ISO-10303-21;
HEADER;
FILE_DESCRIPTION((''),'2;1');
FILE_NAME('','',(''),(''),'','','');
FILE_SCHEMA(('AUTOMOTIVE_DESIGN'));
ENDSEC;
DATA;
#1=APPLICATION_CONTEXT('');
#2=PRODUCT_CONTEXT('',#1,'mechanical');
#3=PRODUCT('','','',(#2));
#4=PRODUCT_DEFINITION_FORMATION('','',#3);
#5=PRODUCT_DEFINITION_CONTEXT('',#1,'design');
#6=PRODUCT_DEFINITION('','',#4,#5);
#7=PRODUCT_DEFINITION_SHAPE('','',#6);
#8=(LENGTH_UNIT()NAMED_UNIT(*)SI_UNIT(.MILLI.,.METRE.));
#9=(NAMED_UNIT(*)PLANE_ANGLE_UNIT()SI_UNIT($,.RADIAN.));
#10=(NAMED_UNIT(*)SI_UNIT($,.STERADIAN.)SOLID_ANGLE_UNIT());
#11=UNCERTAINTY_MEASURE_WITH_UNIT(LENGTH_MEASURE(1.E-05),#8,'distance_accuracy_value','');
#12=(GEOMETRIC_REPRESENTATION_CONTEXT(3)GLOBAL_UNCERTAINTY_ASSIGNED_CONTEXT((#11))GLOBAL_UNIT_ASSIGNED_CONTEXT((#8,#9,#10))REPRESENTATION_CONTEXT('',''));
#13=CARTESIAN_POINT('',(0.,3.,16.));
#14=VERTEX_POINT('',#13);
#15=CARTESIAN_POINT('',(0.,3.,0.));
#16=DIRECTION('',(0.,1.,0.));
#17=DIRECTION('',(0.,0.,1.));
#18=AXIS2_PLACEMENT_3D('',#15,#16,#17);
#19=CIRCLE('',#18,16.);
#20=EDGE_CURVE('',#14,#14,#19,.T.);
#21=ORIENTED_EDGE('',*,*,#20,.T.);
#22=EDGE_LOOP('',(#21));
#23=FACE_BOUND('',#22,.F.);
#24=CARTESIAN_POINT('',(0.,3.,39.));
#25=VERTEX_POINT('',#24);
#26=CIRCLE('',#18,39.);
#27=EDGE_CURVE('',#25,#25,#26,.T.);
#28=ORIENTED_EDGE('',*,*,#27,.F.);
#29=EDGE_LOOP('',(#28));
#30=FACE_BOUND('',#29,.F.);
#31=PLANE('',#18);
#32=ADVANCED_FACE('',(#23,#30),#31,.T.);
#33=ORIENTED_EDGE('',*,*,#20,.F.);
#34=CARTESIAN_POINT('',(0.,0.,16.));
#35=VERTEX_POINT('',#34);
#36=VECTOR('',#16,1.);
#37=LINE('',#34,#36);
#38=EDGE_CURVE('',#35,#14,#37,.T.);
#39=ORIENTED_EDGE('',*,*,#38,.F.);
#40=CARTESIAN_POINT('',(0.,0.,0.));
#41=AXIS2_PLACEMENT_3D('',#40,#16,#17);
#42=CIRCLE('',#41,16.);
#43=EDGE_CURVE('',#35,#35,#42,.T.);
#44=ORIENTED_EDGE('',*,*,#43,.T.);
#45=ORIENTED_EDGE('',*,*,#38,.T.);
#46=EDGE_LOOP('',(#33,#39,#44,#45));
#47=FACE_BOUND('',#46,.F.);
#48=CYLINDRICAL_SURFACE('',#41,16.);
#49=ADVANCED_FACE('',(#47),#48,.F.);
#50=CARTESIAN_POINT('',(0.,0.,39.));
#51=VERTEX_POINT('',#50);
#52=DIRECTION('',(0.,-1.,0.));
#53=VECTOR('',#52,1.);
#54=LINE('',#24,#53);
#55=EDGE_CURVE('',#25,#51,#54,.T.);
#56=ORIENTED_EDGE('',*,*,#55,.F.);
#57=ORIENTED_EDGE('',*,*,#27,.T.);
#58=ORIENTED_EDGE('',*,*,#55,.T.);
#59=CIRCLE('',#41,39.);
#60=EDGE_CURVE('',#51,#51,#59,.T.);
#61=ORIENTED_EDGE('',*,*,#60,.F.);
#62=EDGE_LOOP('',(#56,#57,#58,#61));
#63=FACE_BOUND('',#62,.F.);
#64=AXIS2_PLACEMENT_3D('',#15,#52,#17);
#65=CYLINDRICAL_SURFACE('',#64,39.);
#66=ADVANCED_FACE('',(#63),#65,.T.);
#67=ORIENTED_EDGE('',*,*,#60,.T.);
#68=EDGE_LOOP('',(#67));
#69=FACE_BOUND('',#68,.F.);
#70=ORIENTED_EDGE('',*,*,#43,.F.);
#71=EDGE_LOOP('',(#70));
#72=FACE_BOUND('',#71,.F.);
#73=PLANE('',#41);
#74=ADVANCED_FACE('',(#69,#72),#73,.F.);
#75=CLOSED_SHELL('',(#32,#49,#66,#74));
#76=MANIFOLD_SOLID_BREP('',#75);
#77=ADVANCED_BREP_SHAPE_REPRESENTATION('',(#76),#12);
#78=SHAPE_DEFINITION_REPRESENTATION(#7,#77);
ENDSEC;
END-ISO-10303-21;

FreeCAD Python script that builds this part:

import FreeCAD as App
import Part
import Sketcher
from FreeCAD import Vector
Q = App.Units.Quantity

doc = App.newDocument("Part")
body = doc.addObject("PartDesign::Body", "Body")

# Sketch on YZ plane
sketch1 = body.newObject("Sketcher::SketchObject", "Sketch")
sketch1.AttachmentSupport = (doc.getObject("YZ_Plane"), [""])
sketch1.MapMode = "FlatFace"
sketch1.addGeometry(Part.LineSegment(Vector(0, 39, 0), Vector(0, 16, 0)), False)
sketch1.addGeometry(Part.LineSegment(Vector(0, 16, 0), Vector(3, 16, 0)), False)
sketch1.addGeometry(Part.LineSegment(Vector(3, 16, 0), Vector(3, 39, 0)), False)
sketch1.addGeometry(Part.LineSegment(Vector(3, 39, 0), Vector(0, 39, 0)), False)
sketch1.addConstraint(Sketcher.Constraint("Coincident", 0, 2, 1, 1))
sketch1.addConstraint(Sketcher.Constraint("Coincident", 1, 2, 2, 1))
sketch1.addConstraint(Sketcher.Constraint("Coincident", 2, 2, 3, 1))
sketch1.addConstraint(Sketcher.Constraint("Coincident", 3, 2, 0, 1))
sketch1.addConstraint(Sketcher.Constraint("Vertical", 0))
sketch1.addConstraint(Sketcher.Constraint("Horizontal", 1))
sketch1.addConstraint(Sketcher.Constraint("Vertical", 2))
sketch1.addConstraint(Sketcher.Constraint("Horizontal", 3))
sketch1.addConstraint(Sketcher.Constraint("PointOnObject", 0, 2, -2))
sketch1.addConstraint(Sketcher.Constraint("DistanceX", 1, 1, 1, 2, Q("3 mm")))
sketch1.addConstraint(Sketcher.Constraint("DistanceY", 0, 2, 0, 1, Q("23 mm")))
sketch1.addConstraint(Sketcher.Constraint("DistanceY", -1, 1, 0, 2, Q("16 mm")))
revolution = body.newObject("PartDesign::Revolution", "Revolution")
revolution.Profile = sketch1
revolution.ReferenceAxis = (sketch1, ["H_Axis"])
revolution.Angle = 360

doc.recompute()
